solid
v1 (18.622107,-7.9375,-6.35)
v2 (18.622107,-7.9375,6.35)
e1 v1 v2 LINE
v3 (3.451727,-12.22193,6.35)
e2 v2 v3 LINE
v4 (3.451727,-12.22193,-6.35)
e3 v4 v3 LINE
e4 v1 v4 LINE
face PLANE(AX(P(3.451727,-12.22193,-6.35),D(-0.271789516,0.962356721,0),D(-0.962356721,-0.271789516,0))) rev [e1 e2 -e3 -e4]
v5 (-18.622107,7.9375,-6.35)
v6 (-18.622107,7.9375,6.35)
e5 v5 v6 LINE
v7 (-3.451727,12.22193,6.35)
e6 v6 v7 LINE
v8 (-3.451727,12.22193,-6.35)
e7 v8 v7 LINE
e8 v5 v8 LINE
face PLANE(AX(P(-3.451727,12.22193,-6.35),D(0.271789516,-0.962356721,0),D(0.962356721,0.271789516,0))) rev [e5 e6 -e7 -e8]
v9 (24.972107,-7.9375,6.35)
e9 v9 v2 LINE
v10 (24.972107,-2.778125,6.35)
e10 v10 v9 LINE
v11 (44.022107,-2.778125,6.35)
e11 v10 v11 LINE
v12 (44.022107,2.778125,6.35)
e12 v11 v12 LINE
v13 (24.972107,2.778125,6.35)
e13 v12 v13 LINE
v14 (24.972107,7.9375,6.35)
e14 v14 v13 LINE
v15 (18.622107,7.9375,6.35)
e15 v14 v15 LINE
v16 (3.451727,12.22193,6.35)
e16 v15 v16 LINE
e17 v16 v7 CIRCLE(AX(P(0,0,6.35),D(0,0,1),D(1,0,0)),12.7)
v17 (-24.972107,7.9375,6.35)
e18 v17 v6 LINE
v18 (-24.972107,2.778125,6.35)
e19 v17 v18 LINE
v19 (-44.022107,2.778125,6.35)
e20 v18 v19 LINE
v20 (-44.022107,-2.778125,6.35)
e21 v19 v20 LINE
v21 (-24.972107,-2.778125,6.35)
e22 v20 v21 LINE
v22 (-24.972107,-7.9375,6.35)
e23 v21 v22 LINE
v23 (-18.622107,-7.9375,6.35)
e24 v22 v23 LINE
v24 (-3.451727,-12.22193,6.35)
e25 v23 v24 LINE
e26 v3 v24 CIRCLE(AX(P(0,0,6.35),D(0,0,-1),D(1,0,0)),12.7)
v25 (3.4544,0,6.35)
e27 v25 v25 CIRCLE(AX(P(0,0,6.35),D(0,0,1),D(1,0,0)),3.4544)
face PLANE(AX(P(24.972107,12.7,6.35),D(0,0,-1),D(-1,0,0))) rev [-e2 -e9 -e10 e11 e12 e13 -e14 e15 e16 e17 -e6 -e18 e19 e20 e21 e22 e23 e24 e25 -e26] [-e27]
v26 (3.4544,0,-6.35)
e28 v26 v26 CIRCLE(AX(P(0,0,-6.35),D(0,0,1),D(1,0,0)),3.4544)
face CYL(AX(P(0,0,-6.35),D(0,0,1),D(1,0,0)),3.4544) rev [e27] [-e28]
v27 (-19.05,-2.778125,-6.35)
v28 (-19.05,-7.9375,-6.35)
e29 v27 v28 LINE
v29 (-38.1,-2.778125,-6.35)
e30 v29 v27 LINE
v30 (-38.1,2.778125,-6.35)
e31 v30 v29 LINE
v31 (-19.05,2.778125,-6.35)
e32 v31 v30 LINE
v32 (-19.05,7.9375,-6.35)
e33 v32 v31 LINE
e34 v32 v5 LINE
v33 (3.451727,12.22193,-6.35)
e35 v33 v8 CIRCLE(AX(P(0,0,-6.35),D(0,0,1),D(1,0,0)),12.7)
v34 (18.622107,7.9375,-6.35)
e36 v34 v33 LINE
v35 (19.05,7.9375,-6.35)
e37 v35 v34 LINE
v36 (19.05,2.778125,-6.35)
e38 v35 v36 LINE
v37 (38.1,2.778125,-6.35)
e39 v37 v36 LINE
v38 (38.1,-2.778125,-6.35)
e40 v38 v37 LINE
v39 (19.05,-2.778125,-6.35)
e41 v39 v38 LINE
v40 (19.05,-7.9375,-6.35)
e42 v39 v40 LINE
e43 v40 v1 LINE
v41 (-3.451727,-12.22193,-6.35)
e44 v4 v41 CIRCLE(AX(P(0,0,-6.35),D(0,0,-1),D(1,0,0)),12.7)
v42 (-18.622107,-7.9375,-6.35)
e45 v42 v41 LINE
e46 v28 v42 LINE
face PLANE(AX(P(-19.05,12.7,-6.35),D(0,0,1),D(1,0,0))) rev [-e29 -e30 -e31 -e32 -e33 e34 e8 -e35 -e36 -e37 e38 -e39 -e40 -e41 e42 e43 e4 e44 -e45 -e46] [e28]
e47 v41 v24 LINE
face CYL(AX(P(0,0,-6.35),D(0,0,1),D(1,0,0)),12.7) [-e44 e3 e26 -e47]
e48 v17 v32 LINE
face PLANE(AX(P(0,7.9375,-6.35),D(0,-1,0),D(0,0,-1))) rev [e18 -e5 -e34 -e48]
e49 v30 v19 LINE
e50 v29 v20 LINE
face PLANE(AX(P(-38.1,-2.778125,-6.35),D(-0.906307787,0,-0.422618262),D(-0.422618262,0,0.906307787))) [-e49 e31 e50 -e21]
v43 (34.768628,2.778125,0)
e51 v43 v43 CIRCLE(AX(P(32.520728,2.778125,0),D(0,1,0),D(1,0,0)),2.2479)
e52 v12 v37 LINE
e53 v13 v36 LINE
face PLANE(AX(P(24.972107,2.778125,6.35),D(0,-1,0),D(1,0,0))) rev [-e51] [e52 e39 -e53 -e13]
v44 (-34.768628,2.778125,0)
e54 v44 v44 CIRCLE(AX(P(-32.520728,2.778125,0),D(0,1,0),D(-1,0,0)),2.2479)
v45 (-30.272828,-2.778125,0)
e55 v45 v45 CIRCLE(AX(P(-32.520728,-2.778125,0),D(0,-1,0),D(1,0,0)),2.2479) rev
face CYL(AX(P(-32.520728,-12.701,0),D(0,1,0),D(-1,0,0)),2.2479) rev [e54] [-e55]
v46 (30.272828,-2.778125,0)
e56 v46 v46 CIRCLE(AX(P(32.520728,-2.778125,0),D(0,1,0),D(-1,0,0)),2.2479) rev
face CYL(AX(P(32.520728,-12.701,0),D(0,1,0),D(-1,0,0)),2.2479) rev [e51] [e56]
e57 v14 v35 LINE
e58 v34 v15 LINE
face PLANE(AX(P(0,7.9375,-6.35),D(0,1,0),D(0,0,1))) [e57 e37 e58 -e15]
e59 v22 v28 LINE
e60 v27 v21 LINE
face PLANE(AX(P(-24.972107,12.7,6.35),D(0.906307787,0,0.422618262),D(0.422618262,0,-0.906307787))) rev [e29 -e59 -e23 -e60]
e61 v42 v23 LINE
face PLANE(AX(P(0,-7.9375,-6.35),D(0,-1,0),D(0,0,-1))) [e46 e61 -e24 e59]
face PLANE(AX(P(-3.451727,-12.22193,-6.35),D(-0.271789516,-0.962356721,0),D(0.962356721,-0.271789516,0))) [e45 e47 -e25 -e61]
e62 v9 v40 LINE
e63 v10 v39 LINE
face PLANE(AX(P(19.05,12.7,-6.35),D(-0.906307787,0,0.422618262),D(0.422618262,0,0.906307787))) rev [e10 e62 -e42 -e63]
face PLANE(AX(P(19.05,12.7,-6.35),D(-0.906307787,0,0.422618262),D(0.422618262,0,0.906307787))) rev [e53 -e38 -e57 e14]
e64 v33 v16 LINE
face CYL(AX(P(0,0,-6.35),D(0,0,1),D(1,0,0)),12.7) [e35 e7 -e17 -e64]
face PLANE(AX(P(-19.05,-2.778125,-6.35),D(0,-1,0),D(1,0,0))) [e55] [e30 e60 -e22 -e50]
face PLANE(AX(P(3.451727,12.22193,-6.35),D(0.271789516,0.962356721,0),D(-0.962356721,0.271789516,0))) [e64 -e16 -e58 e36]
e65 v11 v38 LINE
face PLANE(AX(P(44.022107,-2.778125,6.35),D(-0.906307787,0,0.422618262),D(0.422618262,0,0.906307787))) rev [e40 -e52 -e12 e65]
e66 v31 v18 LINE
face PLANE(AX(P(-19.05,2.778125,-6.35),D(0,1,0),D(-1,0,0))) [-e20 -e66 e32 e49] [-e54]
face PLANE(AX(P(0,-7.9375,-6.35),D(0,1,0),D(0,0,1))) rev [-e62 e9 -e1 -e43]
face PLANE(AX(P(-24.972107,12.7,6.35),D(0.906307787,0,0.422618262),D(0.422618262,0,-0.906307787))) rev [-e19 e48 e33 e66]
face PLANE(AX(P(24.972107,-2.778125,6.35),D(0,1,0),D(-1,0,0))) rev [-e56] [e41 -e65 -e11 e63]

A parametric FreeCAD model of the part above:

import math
import FreeCAD as App
import Part
import Sketcher
from FreeCAD import Vector
Q = App.Units.Quantity


def add_polygon(sketch, points):
    """Adds a closed chain of lines whose ends are joined by coincident constraints."""
    first, n = sketch.GeometryCount, len(points)
    for a, b in zip(points, points[1:] + points[:1]):
        sketch.addGeometry(Part.LineSegment(App.Vector(*a, 0), App.Vector(*b, 0)), False)
    for i in range(n):
        sketch.addConstraint(Sketcher.Constraint("Coincident", first + i, 2, first + (i + 1) % n, 1))

doc = App.newDocument("Part")
body = doc.addObject("PartDesign::Body", "Body")

sketch1 = body.newObject("Sketcher::SketchObject", "Sketch")
sketch1.AttachmentSupport = (doc.getObject("XZ_Plane"), [""])
sketch1.MapMode = "FlatFace"
add_polygon(sketch1, [(19, -6), (-19, -6), (-25, 6), (25, 6)])
sketch1.addConstraint(Sketcher.Constraint("Horizontal", 0))
sketch1.addConstraint(Sketcher.Constraint("Horizontal", 2))
sketch1.addConstraint(Sketcher.Constraint("Equal", 1, 3))
sketch1.addConstraint(Sketcher.Constraint("DistanceX", 0, 2, 0, 1, Q("1.5 in")))
sketch1.addConstraint(Sketcher.Constraint("Angle", 1, Q("115 deg")))
sketch1.addConstraint(Sketcher.Constraint("DistanceY", 0, 2, 1, 2, Q("0.5 in")))
sketch1.addConstraint(Sketcher.Constraint("DistanceX", 0, 2, -1, 1, Q("0.75 in")))
sketch1.addConstraint(Sketcher.Constraint("DistanceY", 0, 2, -1, 1, Q("0.25 in")))
pad1 = body.newObject("PartDesign::Pad", "Pad")
pad1.Profile = sketch1
pad1.Length = Q("1 in")
pad1.Midplane = True

sketch2 = body.newObject("Sketcher::SketchObject", "Sketch001")
sketch2.AttachmentSupport = (doc.getObject("XY_Plane"), [""])
sketch2.MapMode = "FlatFace"
sketch2.AttachmentOffset = App.Placement(Vector(0, 0, 0.25 * 25.4), App.Rotation())
sketch2.addGeometry(Part.Circle(Vector(0, 0, 0), Vector(0, 0, 1), 3.5), False)
sketch2.addConstraint(Sketcher.Constraint("Coincident", 0, 3, -1, 1))
sketch2.addConstraint(Sketcher.Constraint("Diameter", 0, Q("0.272 in")))
pocket1 = body.newObject("PartDesign::Pocket", "Pocket")
pocket1.Profile = sketch2
pocket1.Type = "ThroughAll"

sketch3 = body.newObject("Sketcher::SketchObject", "Sketch002")
sketch3.AttachmentSupport = (doc.getObject("XY_Plane"), [""])
sketch3.MapMode = "FlatFace"
sketch3.AttachmentOffset = App.Placement(Vector(0, 0, 0.25 * 25.4), App.Rotation())
add_polygon(sketch3, [(-44, 3), (-44, -3), (-25, -3), (-25, 3)])
sketch3.addConstraint(Sketcher.Constraint("Vertical", 0))
sketch3.addConstraint(Sketcher.Constraint("Horizontal", 1))
sketch3.addConstraint(Sketcher.Constraint("Vertical", 2))
sketch3.addConstraint(Sketcher.Constraint("Horizontal", 3))
sketch3.addConstraint(Sketcher.Constraint("DistanceX", 1, 1, 1, 2, Q("0.75 in")))
sketch3.addConstraint(Sketcher.Constraint("DistanceY", 0, 2, 0, 1, Q("0.21875 in")))
sketch3.addConstraint(Sketcher.Constraint("DistanceY", 0, 2, -1, 1, Q("0.109375 in")))
sketch3.addConstraint(Sketcher.Constraint("DistanceX", 0, 2, -1, 1, 44.022107))

sketch4 = body.newObject("Sketcher::SketchObject", "Sketch003")
sketch4.Placement = App.Placement(Vector(-18.079743, 0, -8.430723), App.Rotation(Vector(-0.422618262, 0, 0.906307787), Vector(0, 1, 0), Vector(-0.906307787, 0, -0.422618262), "ZXY"))
sketch4.addGeometry(Part.LineSegment(Vector(2, 13, 0), Vector(16, 13, 0)), False)
sketch4.addConstraint(Sketcher.Constraint("Horizontal", 0))
sketch4.addConstraint(Sketcher.Constraint("DistanceY", -1, 1, 0, 1, Q("0.5 in")))
sketch4.addConstraint(Sketcher.Constraint("DistanceX", 0, 1, 0, 2, 14.0129))
sketch4.addConstraint(Sketcher.Constraint("DistanceX", -1, 1, 0, 1, 2.295823))
doc.recompute()

additivepipe = body.newObject("PartDesign::AdditivePipe", "AdditivePipe")
additivepipe.Profile = sketch3
additivepipe.Spine = (sketch4, ["Edge1"])

sketch5 = body.newObject("Sketcher::SketchObject", "Sketch004")
sketch5.AttachmentSupport = (doc.getObject("XY_Plane"), [""])
sketch5.MapMode = "FlatFace"
sketch5.AttachmentOffset = App.Placement(Vector(0, 0, 0.25 * 25.4), App.Rotation())
add_polygon(sketch5, [(25, 3), (25, -3), (44, -3), (44, 3)])
sketch5.addConstraint(Sketcher.Constraint("Vertical", 0))
sketch5.addConstraint(Sketcher.Constraint("Horizontal", 1))
sketch5.addConstraint(Sketcher.Constraint("Vertical", 2))
sketch5.addConstraint(Sketcher.Constraint("Horizontal", 3))
sketch5.addConstraint(Sketcher.Constraint("DistanceX", 1, 1, 1, 2, Q("0.75 in")))
sketch5.addConstraint(Sketcher.Constraint("DistanceY", 0, 2, 0, 1, Q("0.21875 in")))
sketch5.addConstraint(Sketcher.Constraint("DistanceY", 0, 2, -1, 1, Q("0.109375 in")))
sketch5.addConstraint(Sketcher.Constraint("DistanceX", -1, 1, 0, 2, 24.972107))

sketch6 = body.newObject("Sketcher::SketchObject", "Sketch005")
sketch6.Placement = App.Placement(Vector(18.079743, 0, -8.430723), App.Rotation(Vector(-0.422618262, 0, -0.906307787), Vector(0, 1, 0), Vector(0.906307787, 0, -0.422618262), "ZXY"))
sketch6.addGeometry(Part.LineSegment(Vector(-16, 13, 0), Vector(-2, 13, 0)), False)
sketch6.addConstraint(Sketcher.Constraint("Horizontal", 0))
sketch6.addConstraint(Sketcher.Constraint("DistanceY", -1, 1, 0, 1, Q("0.5 in")))
sketch6.addConstraint(Sketcher.Constraint("DistanceX", 0, 1, 0, 2, 14.0129))
sketch6.addConstraint(Sketcher.Constraint("DistanceX", 0, 1, -1, 1, 16.308723))
doc.recompute()

additivepipe2 = body.newObject("PartDesign::AdditivePipe", "AdditivePipe001")
additivepipe2.Profile = sketch5
additivepipe2.Spine = (sketch6, ["Edge1"])

sketch7 = body.newObject("Sketcher::SketchObject", "Sketch006")
sketch7.AttachmentSupport = (doc.getObject("XZ_Plane"), [""])
sketch7.MapMode = "FlatFace"
sketch7.AttachmentOffset = App.Placement(Vector(0, 0, -0.109375 * 25.4), App.Rotation())
sketch7.addGeometry(Part.Circle(Vector(-32.5, 0, 0), Vector(0, 0, 1), 2.2), False)
sketch7.addConstraint(Sketcher.Constraint("PointOnObject", 0, 3, -1))
sketch7.addConstraint(Sketcher.Constraint("Diameter", 0, Q("0.177 in")))
sketch7.addConstraint(Sketcher.Constraint("DistanceX", 0, 3, -1, 1, 32.520728))
pocket2 = body.newObject("PartDesign::Pocket", "Pocket001")
pocket2.Profile = sketch7
pocket2.Type = "UpToFirst"
pocket2.Reversed = True

sketch8 = body.newObject("Sketcher::SketchObject", "Sketch007")
sketch8.AttachmentSupport = (doc.getObject("XZ_Plane"), [""])
sketch8.MapMode = "FlatFace"
sketch8.AttachmentOffset = App.Placement(Vector(0, 0, -0.109375 * 25.4), App.Rotation())
sketch8.addGeometry(Part.Circle(Vector(32.5, 0, 0), Vector(0, 0, 1), 2.2), False)
sketch8.addConstraint(Sketcher.Constraint("PointOnObject", 0, 3, -1))
sketch8.addConstraint(Sketcher.Constraint("Diameter", 0, Q("0.177 in")))
sketch8.addConstraint(Sketcher.Constraint("DistanceX", -1, 1, 0, 3, 32.520728))
pocket3 = body.newObject("PartDesign::Pocket", "Pocket002")
pocket3.Profile = sketch8
pocket3.Type = "UpToFirst"
pocket3.Reversed = True

sketch9 = body.newObject("Sketcher::SketchObject", "Sketch008")
sketch9.AttachmentSupport = (doc.getObject("XY_Plane"), [""])
sketch9.MapMode = "FlatFace"
sketch9.AttachmentOffset = App.Placement(Vector(0, 0, 0.25 * 25.4), App.Rotation())
sketch9.addGeometry(Part.LineSegment(Vector(-25, 12.7, 0), Vector(-25, 7.9, 0)), False)
sketch9.addGeometry(Part.LineSegment(Vector(-25, 7.9, 0), Vector(-18.6, 7.9, 0)), False)
sketch9.addGeometry(Part.LineSegment(Vector(-18.6, 7.9, 0), Vector(-3.5, 12.2, 0)), False)
sketch9.addGeometry(Part.ArcOfCircle(Part.Circle(Vector(0, 0, 0), Vector(0, 0, 1), 12.7), math.radians(90), math.radians(105.77)), False)
sketch9.addGeometry(Part.LineSegment(Vector(0, 12.7, 0), Vector(-25, 12.7, 0)), False)
sketch9.addConstraint(Sketcher.Constraint("Coincident", 0, 2, 1, 1))
sketch9.addConstraint(Sketcher.Constraint("Coincident", 1, 2, 2, 1))
sketch9.addConstraint(Sketcher.Constraint("Tangent", 2, 2, 3, 2))
sketch9.addConstraint(Sketcher.Constraint("Tangent", 3, 1, 4, 1))
sketch9.addConstraint(Sketcher.Constraint("Coincident", 4, 2, 0, 1))
sketch9.addConstraint(Sketcher.Constraint("Vertical", 0))
sketch9.addConstraint(Sketcher.Constraint("Horizontal", 1))
sketch9.addConstraint(Sketcher.Constraint("Horizontal", 4))
sketch9.addConstraint(Sketcher.Constraint("Coincident", 3, 3, -1, 1))
sketch9.addConstraint(Sketcher.Constraint("Radius", 3, Q("0.5 in")))
sketch9.addConstraint(Sketcher.Constraint("DistanceX", 1, 1, 1, 2, Q("0.25 in")))
sketch9.addConstraint(Sketcher.Constraint("DistanceY", 0, 2, 0, 1, Q("0.1875 in")))
sketch9.addConstraint(Sketcher.Constraint("Distance", 2, 15.763781))
pocket4 = body.newObject("PartDesign::Pocket", "Pocket003")
pocket4.Profile = sketch9
pocket4.Type = "ThroughAll"
doc.recompute()

mirrored = body.newObject("PartDesign::Mirrored", "Mirrored")
mirrored.Originals = [pocket4]
mirrored.MirrorPlane = (doc.getObject("YZ_Plane"), [""])
body.Tip = mirrored
doc.recompute()

mirrored2 = body.newObject("PartDesign::Mirrored", "Mirrored001")
mirrored2.Originals = [pocket4]
mirrored2.MirrorPlane = (doc.getObject("XZ_Plane"), [""])
body.Tip = mirrored2

sketch10 = body.newObject("Sketcher::SketchObject", "Sketch009")
sketch10.AttachmentSupport = (doc.getObject("XY_Plane"), [""])
sketch10.MapMode = "FlatFace"
sketch10.AttachmentOffset = App.Placement(Vector(0, 0, 0.25 * 25.4), App.Rotation())
sketch10.addGeometry(Part.LineSegment(Vector(25, -12.7, 0), Vector(25, -7.9, 0)), False)
sketch10.addGeometry(Part.LineSegment(Vector(25, -7.9, 0), Vector(18.6, -7.9, 0)), False)
sketch10.addGeometry(Part.LineSegment(Vector(18.6, -7.9, 0), Vector(3.5, -12.2, 0)), False)
sketch10.addGeometry(Part.ArcOfCircle(Part.Circle(Vector(0, 0, 0), Vector(0, 0, 1), 12.7), math.radians(-90), math.radians(-74.23)), False)
sketch10.addGeometry(Part.LineSegment(Vector(0, -12.7, 0), Vector(25, -12.7, 0)), False)
sketch10.addConstraint(Sketcher.Constraint("Coincident", 0, 2, 1, 1))
sketch10.addConstraint(Sketcher.Constraint("Coincident", 1, 2, 2, 1))
sketch10.addConstraint(Sketcher.Constraint("Tangent", 2, 2, 3, 2))
sketch10.addConstraint(Sketcher.Constraint("Tangent", 3, 1, 4, 1))
sketch10.addConstraint(Sketcher.Constraint("Coincident", 4, 2, 0, 1))
sketch10.addConstraint(Sketcher.Constraint("Vertical", 0))
sketch10.addConstraint(Sketcher.Constraint("Horizontal", 1))
sketch10.addConstraint(Sketcher.Constraint("Horizontal", 4))
sketch10.addConstraint(Sketcher.Constraint("Coincident", 3, 3, -1, 1))
sketch10.addConstraint(Sketcher.Constraint("Radius", 3, Q("0.5 in")))
sketch10.addConstraint(Sketcher.Constraint("DistanceX", 1, 2, 1, 1, Q("0.25 in")))
sketch10.addConstraint(Sketcher.Constraint("DistanceY", 0, 1, 0, 2, Q("0.1875 in")))
sketch10.addConstraint(Sketcher.Constraint("Distance", 2, 15.763781))
pocket5 = body.newObject("PartDesign::Pocket", "Pocket004")
pocket5.Profile = sketch10
pocket5.Type = "ThroughAll"

doc.recompute()
